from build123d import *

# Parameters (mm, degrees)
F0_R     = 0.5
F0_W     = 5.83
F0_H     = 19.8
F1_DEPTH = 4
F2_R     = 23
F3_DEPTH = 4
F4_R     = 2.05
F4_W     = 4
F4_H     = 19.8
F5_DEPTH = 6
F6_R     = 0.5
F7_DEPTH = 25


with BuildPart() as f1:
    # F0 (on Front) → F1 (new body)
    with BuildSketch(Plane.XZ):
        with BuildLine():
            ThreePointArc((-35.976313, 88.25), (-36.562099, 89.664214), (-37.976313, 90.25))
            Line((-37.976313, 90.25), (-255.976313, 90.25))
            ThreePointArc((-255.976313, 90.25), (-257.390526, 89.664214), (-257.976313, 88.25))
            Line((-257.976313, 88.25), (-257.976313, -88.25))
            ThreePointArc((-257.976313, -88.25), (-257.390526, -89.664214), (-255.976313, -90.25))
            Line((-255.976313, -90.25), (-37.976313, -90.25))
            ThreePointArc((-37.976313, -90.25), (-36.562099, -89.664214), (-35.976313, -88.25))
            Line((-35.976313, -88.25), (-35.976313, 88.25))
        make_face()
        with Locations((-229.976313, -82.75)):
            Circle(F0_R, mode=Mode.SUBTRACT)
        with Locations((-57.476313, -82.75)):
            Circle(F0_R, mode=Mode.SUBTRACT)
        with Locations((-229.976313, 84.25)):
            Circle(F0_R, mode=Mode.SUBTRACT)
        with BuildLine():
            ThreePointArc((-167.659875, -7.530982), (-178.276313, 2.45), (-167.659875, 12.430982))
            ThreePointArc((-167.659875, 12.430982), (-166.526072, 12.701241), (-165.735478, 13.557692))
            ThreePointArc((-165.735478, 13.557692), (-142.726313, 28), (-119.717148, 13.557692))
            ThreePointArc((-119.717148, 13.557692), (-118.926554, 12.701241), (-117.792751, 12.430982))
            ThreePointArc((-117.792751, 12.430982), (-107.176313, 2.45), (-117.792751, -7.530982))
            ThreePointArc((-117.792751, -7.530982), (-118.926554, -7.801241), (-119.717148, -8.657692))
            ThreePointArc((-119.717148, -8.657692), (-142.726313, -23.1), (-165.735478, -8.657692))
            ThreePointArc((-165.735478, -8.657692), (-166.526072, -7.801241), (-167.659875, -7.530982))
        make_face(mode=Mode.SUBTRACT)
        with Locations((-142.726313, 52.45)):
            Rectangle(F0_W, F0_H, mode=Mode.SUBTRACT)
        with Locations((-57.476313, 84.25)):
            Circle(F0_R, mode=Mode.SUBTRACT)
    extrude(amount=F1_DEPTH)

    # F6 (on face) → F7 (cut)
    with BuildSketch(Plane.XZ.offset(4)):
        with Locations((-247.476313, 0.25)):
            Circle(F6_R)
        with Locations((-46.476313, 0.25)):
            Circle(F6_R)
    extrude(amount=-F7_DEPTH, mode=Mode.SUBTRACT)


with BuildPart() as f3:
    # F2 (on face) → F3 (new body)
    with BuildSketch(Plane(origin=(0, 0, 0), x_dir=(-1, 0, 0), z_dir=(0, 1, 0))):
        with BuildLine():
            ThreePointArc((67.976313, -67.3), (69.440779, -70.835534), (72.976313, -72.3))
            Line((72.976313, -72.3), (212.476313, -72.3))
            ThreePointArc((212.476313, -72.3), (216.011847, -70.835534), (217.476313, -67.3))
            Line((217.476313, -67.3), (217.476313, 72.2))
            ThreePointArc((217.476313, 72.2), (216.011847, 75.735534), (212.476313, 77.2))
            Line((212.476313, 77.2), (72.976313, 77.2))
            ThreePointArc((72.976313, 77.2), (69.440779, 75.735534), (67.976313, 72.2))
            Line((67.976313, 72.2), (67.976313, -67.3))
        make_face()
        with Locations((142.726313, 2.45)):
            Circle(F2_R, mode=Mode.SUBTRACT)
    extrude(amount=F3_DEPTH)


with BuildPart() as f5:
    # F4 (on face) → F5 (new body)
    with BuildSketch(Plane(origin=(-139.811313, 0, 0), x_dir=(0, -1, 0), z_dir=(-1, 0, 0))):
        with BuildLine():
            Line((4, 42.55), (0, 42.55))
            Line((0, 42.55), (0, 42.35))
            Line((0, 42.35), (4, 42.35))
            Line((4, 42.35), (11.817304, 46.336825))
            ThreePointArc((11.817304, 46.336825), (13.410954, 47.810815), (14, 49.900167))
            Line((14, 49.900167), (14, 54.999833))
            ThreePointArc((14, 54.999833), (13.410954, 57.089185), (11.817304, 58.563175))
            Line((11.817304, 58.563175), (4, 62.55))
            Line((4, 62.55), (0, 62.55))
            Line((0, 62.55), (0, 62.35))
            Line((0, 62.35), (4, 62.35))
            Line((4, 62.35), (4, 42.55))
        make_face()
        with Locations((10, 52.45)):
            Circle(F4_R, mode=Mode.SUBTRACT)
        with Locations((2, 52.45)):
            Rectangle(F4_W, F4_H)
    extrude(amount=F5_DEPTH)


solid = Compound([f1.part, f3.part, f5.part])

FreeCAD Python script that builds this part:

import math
import FreeCAD as App
import Part
import Sketcher

V = App.Vector
Q = App.Units.Quantity


def add_polygon(sketch, points):
    """Adds a closed chain of lines whose ends are joined by coincident constraints."""
    first, n = sketch.GeometryCount, len(points)
    for a, b in zip(points, points[1:] + points[:1]):
        sketch.addGeometry(Part.LineSegment(App.Vector(*a, 0), App.Vector(*b, 0)), False)
    for i in range(n):
        sketch.addConstraint(Sketcher.Constraint("Coincident", first + i, 2, first + (i + 1) % n, 1))

doc = App.newDocument("Part")
body = doc.addObject("PartDesign::Body", "Body")

# Sketch on XZ plane
sketch1 = body.newObject("Sketcher::SketchObject", "Sketch")
sketch1.AttachmentSupport = (doc.getObject("XZ_Plane"), [""])
sketch1.MapMode = "FlatFace"
sketch1.addGeometry(Part.ArcOfCircle(Part.Circle(V(-37.976312, 88.250001, 0), V(0, 0, 1), 1.999999), math.radians(-0.000043), math.radians(90.000043)), False)  # 0
sketch1.addGeometry(Part.LineSegment(V(-37.976313, 90.25, 0), V(-255.976313, 90.25, 0)), False)  # 1
sketch1.addGeometry(Part.ArcOfCircle(Part.Circle(V(-255.976313, 88.25, 0), V(0, 0, 1), 2), math.radians(90.000006), math.radians(179.999994)), False)  # 2
sketch1.addGeometry(Part.LineSegment(V(-257.976313, 88.25, 0), V(-257.976313, -88.25, 0)), False)  # 3
sketch1.addGeometry(Part.ArcOfCircle(Part.Circle(V(-255.976313, -88.25, 0), V(0, 0, 1), 2), math.radians(-179.999994), math.radians(-90.000006)), False)  # 4
sketch1.addGeometry(Part.LineSegment(V(-255.976313, -90.25, 0), V(-37.976313, -90.25, 0)), False)  # 5
sketch1.addGeometry(Part.ArcOfCircle(Part.Circle(V(-37.976312, -88.250001, 0), V(0, 0, 1), 1.999999), math.radians(-90.000043), math.radians(0.000043)), False)  # 6
sketch1.addGeometry(Part.LineSegment(V(-35.976313, -88.25, 0), V(-35.976313, 88.25, 0)), False)  # 7
sketch1.addGeometry(Part.Circle(V(-229.976313, -82.75, 0), V(0, 0, 1), 0.5), False)  # 8
sketch1.addGeometry(Part.Circle(V(-57.476313, -82.75, 0), V(0, 0, 1), 0.5), False)  # 9
sketch1.addGeometry(Part.Circle(V(-229.976313, 84.25, 0), V(0, 0, 1), 0.5), False)  # 10
sketch1.addGeometry(Part.ArcOfCircle(Part.Circle(V(-167.536587, -9.527178, 0), V(0, 0, 1), 2), math.radians(25.768946), math.radians(93.534191)), False)  # 11
sketch1.addGeometry(Part.ArcOfCircle(Part.Circle(V(-168.276313, 2.45, 0), V(0, 0, 1), 10), math.radians(86.465829), math.radians(273.534171)), False)  # 12
sketch1.addGeometry(Part.ArcOfCircle(Part.Circle(V(-167.536587, 14.427178, 0), V(0, 0, 1), 2), math.radians(-93.534191), math.radians(-25.768946)), False)  # 13
sketch1.addGeometry(Part.ArcOfCircle(Part.Circle(V(-142.726313, 2.45, 0), V(0, 0, 1), 25.55), math.radians(25.768962), math.radians(154.231038)), False)  # 14
sketch1.addGeometry(Part.ArcOfCircle(Part.Circle(V(-117.916039, 14.427178, 0), V(0, 0, 1), 2), math.radians(-154.231054), math.radians(-86.465809)), False)  # 15
sketch1.addGeometry(Part.ArcOfCircle(Part.Circle(V(-117.176313, 2.45, 0), V(0, 0, 1), 10), math.radians(-93.534171), math.radians(93.534171)), False)  # 16
sketch1.addGeometry(Part.ArcOfCircle(Part.Circle(V(-117.916039, -9.527178, 0), V(0, 0, 1), 2), math.radians(86.465809), math.radians(154.231054)), False)  # 17
sketch1.addGeometry(Part.ArcOfCircle(Part.Circle(V(-142.726313, 2.45, 0), V(0, 0, 1), 25.55), math.radians(-154.231038), math.radians(-25.768962)), False)  # 18
add_polygon(sketch1, [(-139.811313, 42.55), (-145.641313, 42.55), (-145.641313, 62.35), (-139.811313, 62.35)])  # lines 19-22
sketch1.addGeometry(Part.Circle(V(-57.476313, 84.25, 0), V(0, 0, 1), 0.5), False)  # 23
sketch1.addConstraint([
    Sketcher.Constraint("Tangent", 0, 2, 1, 1),
    Sketcher.Constraint("Tangent", 1, 2, 2, 1),
    Sketcher.Constraint("Tangent", 2, 2, 3, 1),
    Sketcher.Constraint("Tangent", 3, 2, 4, 1),
    Sketcher.Constraint("Tangent", 4, 2, 5, 1),
    Sketcher.Constraint("Tangent", 5, 2, 6, 1),
    Sketcher.Constraint("Tangent", 6, 2, 7, 1),
    Sketcher.Constraint("Tangent", 7, 2, 0, 1),
    Sketcher.Constraint("Tangent", 11, 2, 12, 2),
    Sketcher.Constraint("Tangent", 12, 1, 13, 1),
    Sketcher.Constraint("Tangent", 13, 2, 14, 2),
    Sketcher.Constraint("Tangent", 14, 1, 15, 1),
    Sketcher.Constraint("Tangent", 15, 2, 16, 2),
    Sketcher.Constraint("Tangent", 16, 1, 17, 1),
    Sketcher.Constraint("Tangent", 17, 2, 18, 2),
    Sketcher.Constraint("Tangent", 18, 1, 11, 1),
    Sketcher.Constraint("Horizontal", 1),
    Sketcher.Constraint("Vertical", 3),
    Sketcher.Constraint("Horizontal", 5),
    Sketcher.Constraint("Vertical", 7),
    Sketcher.Constraint("Horizontal", 19),
    Sketcher.Constraint("Vertical", 20),
    Sketcher.Constraint("Horizontal", 21),
    Sketcher.Constraint("Vertical", 22),
    Sketcher.Constraint("Coincident", 18, 3, 14, 3),
    Sketcher.Constraint("Equal", 0, 2),
    Sketcher.Constraint("Equal", 2, 4),
    Sketcher.Constraint("Equal", 4, 6),
    Sketcher.Constraint("Equal", 8, 9),
    Sketcher.Constraint("Equal", 9, 10),
    Sketcher.Constraint("Equal", 6, 11),
    Sketcher.Constraint("Equal", 11, 13),
    Sketcher.Constraint("Equal", 13, 15),
    Sketcher.Constraint("Equal", 12, 16),
    Sketcher.Constraint("Equal", 15, 17),
    Sketcher.Constraint("Equal", 14, 18),
    Sketcher.Constraint("Equal", 10, 23),
    Sketcher.Constraint("Horizontal", 8, 3, 9, 3),
    Sketcher.Constraint("Horizontal", 12, 3, 14, 3),
    Sketcher.Constraint("Horizontal", 13, 3, 15, 3),
    Sketcher.Constraint("Horizontal", 14, 3, 16, 3),
    Sketcher.Constraint("Horizontal", 10, 3, 23, 3),
    Sketcher.Constraint("Vertical", 8, 3, 10, 3),
    Sketcher.Constraint("Vertical", 9, 3, 23, 3),
    Sketcher.Constraint("Diameter", 8, Q("1 mm")),
    Sketcher.Constraint("Radius", 0, Q("1.999999 mm")),
    Sketcher.Constraint("Radius", 12, Q("10 mm")),
    Sketcher.Constraint("DistanceX", 1, 2, 1, 1, Q("218 mm")),
    Sketcher.Constraint("Radius", 14, Q("25.55 mm")),
    Sketcher.Constraint("DistanceY", 3, 2, 3, 1, Q("176.5 mm")),
    Sketcher.Constraint("DistanceY", 20, 1, 20, 2, Q("19.8 mm")),
    Sketcher.Constraint("DistanceX", 4, 3, 8, 3, Q("26 mm")),
    Sketcher.Constraint("DistanceY", 8, 3, 2, 3, Q("171 mm")),
    Sketcher.Constraint("DistanceY", 10, 3, 2, 3, Q("4 mm")),
    Sketcher.Constraint("DistanceX", 19, 2, 19, 1, Q("5.83 mm")),
    Sketcher.Constraint("DistanceX", 9, 3, 6, 3, Q("19.500001 mm")),
    Sketcher.Constraint("DistanceX", 10, 3, 12, 3, Q("61.7 mm")),
    Sketcher.Constraint("DistanceY", 12, 3, 10, 3, Q("81.8 mm")),
    Sketcher.Constraint("DistanceX", 12, 3, 16, 3, Q("51.1 mm")),
    Sketcher.Constraint("DistanceY", -1, 1, 0, 3, Q("88.250001 mm")),
    Sketcher.Constraint("DistanceY", -1, 1, 19, 2, Q("42.55 mm")),
    Sketcher.Constraint("DistanceX", 0, 3, -1, 1, Q("37.976312 mm")),
    Sketcher.Constraint("DistanceX", 12, 1, 19, 2, Q("22.018562 mm")),
])
pad1 = body.newObject("PartDesign::Pad", "Pad")
pad1.Profile = sketch1
pad1.Length = 4

# Sketch on XZ plane
sketch2 = body.newObject("Sketcher::SketchObject", "Sketch001")
sketch2.AttachmentSupport = (doc.getObject("XZ_Plane"), [""])
sketch2.MapMode = "FlatFace"
sketch2.AttachmentOffset = App.Placement(V(0, 0, 4), App.Rotation())
sketch2.addGeometry([
    Part.Circle(V(-247.476313, 0.25, 0), V(0, 0, 1), 0.5),
    Part.Circle(V(-46.476313, 0.25, 0), V(0, 0, 1), 0.5),
], False)
sketch2.addConstraint([
    Sketcher.Constraint("Equal", 0, 1),
    Sketcher.Constraint("Horizontal", 0, 3, 1, 3),
    Sketcher.Constraint("Diameter", 0, Q("1 mm")),
    Sketcher.Constraint("DistanceX", 0, 3, 1, 3, Q("201 mm")),
    Sketcher.Constraint("DistanceY", -1, 1, 0, 3, Q("0.25 mm")),
    Sketcher.Constraint("DistanceX", 0, 3, -1, 1, Q("247.476313 mm")),
])
pocket1 = body.newObject("PartDesign::Pocket", "Pocket")
pocket1.Profile = sketch2
pocket1.Length = 25
body2 = doc.addObject("PartDesign::Body", "Body001")

# Sketch on XZ plane
sketch3 = body2.newObject("Sketcher::SketchObject", "Sketch002")
sketch3.AttachmentSupport = (doc.getObject("XZ_Plane001"), [""])
sketch3.MapMode = "FlatFace"
sketch3.addGeometry([
    Part.ArcOfCircle(Part.Circle(V(-72.976313, -67.3, 0), V(0, 0, 1), 5), math.radians(-90.000004), math.radians(0.000004)),  # 0
    Part.LineSegment(V(-72.976313, -72.3, 0), V(-212.476313, -72.3, 0)),  # 1
    Part.ArcOfCircle(Part.Circle(V(-212.476313, -67.3, 0), V(0, 0, 1), 5), math.radians(179.999996), math.radians(270.000004)),  # 2
    Part.LineSegment(V(-217.476313, -67.3, 0), V(-217.476313, 72.2, 0)),  # 3
    Part.ArcOfCircle(Part.Circle(V(-212.476313, 72.2, 0), V(0, 0, 1), 5), math.radians(89.999996), math.radians(180.000004)),  # 4
    Part.LineSegment(V(-212.476313, 77.2, 0), V(-72.976313, 77.2, 0)),  # 5
    Part.ArcOfCircle(Part.Circle(V(-72.976313, 72.2, 0), V(0, 0, 1), 5), math.radians(-0.000004), math.radians(90.000004)),  # 6
    Part.LineSegment(V(-67.976313, 72.2, 0), V(-67.976313, -67.3, 0)),  # 7
    Part.Circle(V(-142.726313, 2.45, 0), V(0, 0, 1), 23),  # 8
], False)
sketch3.addConstraint([
    Sketcher.Constraint("Tangent", 0, 1, 1, 1),
    Sketcher.Constraint("Tangent", 1, 2, 2, 2),
    Sketcher.Constraint("Tangent", 2, 1, 3, 1),
    Sketcher.Constraint("Tangent", 3, 2, 4, 2),
    Sketcher.Constraint("Tangent", 4, 1, 5, 1),
    Sketcher.Constraint("Tangent", 5, 2, 6, 2),
    Sketcher.Constraint("Tangent", 6, 1, 7, 1),
    Sketcher.Constraint("Tangent", 7, 2, 0, 2),
    Sketcher.Constraint("Horizontal", 1),
    Sketcher.Constraint("Vertical", 3),
    Sketcher.Constraint("Horizontal", 5),
    Sketcher.Constraint("Vertical", 7),
    Sketcher.Constraint("Equal", 0, 2),
    Sketcher.Constraint("Equal", 2, 4),
    Sketcher.Constraint("Equal", 4, 6),
    Sketcher.Constraint("Equal", 5, 3),
    Sketcher.Constraint("Diameter", 8, Q("46 mm")),
    Sketcher.Constraint("Radius", 0, Q("5 mm")),
    Sketcher.Constraint("DistanceX", 1, 2, 1, 1, Q("139.5 mm")),
    Sketcher.Constraint("DistanceY", 0, 3, -1, 1, Q("67.3 mm")),
    Sketcher.Constraint("DistanceY", -1, 1, 8, 3, Q("2.45 mm")),
    Sketcher.Constraint("DistanceX", 2, 3, 8, 3, Q("69.75 mm")),
    Sketcher.Constraint("DistanceX", 0, 3, -1, 1, Q("72.976313 mm")),
])
pad2 = body2.newObject("PartDesign::Pad", "Pad001")
pad2.Profile = sketch3
pad2.Length = 4
pad2.Reversed = True
body3 = doc.addObject("PartDesign::Body", "Body002")

# Sketch on YZ plane
sketch4 = body3.newObject("Sketcher::SketchObject", "Sketch003")
sketch4.AttachmentSupport = (doc.getObject("YZ_Plane002"), [""])
sketch4.MapMode = "FlatFace"
sketch4.AttachmentOffset = App.Placement(V(0, 0, -139.811313), App.Rotation())
sketch4.addGeometry([
    Part.LineSegment(V(0, 42.35, 0), V(-4, 42.35, 0)),  # 0
    Part.LineSegment(V(-4, 42.35, 0), V(-11.817304, 46.336825, 0)),  # 1
    Part.ArcOfCircle(Part.Circle(V(-9.999999, 49.900167, 0), V(0, 0, 1), 4.000001), math.radians(-179.999993), math.radians(-117.021583)),  # 2
    Part.LineSegment(V(-14, 49.900167, 0), V(-14, 54.999833, 0)),  # 3
    Part.ArcOfCircle(Part.Circle(V(-9.999999, 54.999833, 0), V(0, 0, 1), 4.000001), math.radians(117.021583), math.radians(179.999993)),  # 4
    Part.LineSegment(V(-11.817304, 58.563175, 0), V(-4, 62.55, 0)),  # 5
    Part.LineSegment(V(-4, 62.55, 0), V(0, 62.55, 0)),  # 6
    Part.LineSegment(V(0, 62.55, 0), V(0, 42.35, 0)),  # 7
    Part.Circle(V(-10, 52.45, 0), V(0, 0, 1), 2.05),  # 8
], False)
sketch4.addConstraint([
    Sketcher.Constraint("Coincident", 0, 2, 1, 1),
    Sketcher.Constraint("Tangent", 1, 2, 2, 2),
    Sketcher.Constraint("Tangent", 2, 1, 3, 1),
    Sketcher.Constraint("Tangent", 3, 2, 4, 2),
    Sketcher.Constraint("Tangent", 4, 1, 5, 1),
    Sketcher.Constraint("Coincident", 5, 2, 6, 1),
    Sketcher.Constraint("Coincident", 6, 2, 7, 1),
    Sketcher.Constraint("Coincident", 7, 2, 0, 1),
    Sketcher.Constraint("Horizontal", 0),
    Sketcher.Constraint("Vertical", 3),
    Sketcher.Constraint("Horizontal", 6),
    Sketcher.Constraint("Vertical", 7),
    Sketcher.Constraint("Equal", 2, 4),
    Sketcher.Constraint("PointOnObject", 6, 2, -2),
    Sketcher.Constraint("Vertical", 4, 3, 8, 3),
    Sketcher.Constraint("Vertical", 1, 2, 4, 1),
    Sketcher.Constraint("Vertical", 0, 2, 5, 2),
    Sketcher.Constraint("Radius", 2, Q("4.000001 mm")),
    Sketcher.Constraint("Diameter", 8, Q("4.1 mm")),
    Sketcher.Constraint("DistanceX", 0, 2, 0, 1, Q("4 mm")),
    Sketcher.Constraint("DistanceY", 7, 2, 7, 1, Q("20.2 mm")),
    Sketcher.Constraint("DistanceX", 2, 3, -1, 1, Q("9.999999 mm")),
    Sketcher.Constraint("DistanceY", 0, 2, 8, 3, Q("10.1 mm")),
    Sketcher.Constraint("DistanceY", -1, 1, 8, 3, Q("52.45 mm")),
    Sketcher.Constraint("Distance", 1, Q("8.77525 mm")),
])
pad3 = body3.newObject("PartDesign::Pad", "Pad002")
pad3.Profile = sketch4
pad3.Length = 6
pad3.Reversed = True

doc.recompute()
